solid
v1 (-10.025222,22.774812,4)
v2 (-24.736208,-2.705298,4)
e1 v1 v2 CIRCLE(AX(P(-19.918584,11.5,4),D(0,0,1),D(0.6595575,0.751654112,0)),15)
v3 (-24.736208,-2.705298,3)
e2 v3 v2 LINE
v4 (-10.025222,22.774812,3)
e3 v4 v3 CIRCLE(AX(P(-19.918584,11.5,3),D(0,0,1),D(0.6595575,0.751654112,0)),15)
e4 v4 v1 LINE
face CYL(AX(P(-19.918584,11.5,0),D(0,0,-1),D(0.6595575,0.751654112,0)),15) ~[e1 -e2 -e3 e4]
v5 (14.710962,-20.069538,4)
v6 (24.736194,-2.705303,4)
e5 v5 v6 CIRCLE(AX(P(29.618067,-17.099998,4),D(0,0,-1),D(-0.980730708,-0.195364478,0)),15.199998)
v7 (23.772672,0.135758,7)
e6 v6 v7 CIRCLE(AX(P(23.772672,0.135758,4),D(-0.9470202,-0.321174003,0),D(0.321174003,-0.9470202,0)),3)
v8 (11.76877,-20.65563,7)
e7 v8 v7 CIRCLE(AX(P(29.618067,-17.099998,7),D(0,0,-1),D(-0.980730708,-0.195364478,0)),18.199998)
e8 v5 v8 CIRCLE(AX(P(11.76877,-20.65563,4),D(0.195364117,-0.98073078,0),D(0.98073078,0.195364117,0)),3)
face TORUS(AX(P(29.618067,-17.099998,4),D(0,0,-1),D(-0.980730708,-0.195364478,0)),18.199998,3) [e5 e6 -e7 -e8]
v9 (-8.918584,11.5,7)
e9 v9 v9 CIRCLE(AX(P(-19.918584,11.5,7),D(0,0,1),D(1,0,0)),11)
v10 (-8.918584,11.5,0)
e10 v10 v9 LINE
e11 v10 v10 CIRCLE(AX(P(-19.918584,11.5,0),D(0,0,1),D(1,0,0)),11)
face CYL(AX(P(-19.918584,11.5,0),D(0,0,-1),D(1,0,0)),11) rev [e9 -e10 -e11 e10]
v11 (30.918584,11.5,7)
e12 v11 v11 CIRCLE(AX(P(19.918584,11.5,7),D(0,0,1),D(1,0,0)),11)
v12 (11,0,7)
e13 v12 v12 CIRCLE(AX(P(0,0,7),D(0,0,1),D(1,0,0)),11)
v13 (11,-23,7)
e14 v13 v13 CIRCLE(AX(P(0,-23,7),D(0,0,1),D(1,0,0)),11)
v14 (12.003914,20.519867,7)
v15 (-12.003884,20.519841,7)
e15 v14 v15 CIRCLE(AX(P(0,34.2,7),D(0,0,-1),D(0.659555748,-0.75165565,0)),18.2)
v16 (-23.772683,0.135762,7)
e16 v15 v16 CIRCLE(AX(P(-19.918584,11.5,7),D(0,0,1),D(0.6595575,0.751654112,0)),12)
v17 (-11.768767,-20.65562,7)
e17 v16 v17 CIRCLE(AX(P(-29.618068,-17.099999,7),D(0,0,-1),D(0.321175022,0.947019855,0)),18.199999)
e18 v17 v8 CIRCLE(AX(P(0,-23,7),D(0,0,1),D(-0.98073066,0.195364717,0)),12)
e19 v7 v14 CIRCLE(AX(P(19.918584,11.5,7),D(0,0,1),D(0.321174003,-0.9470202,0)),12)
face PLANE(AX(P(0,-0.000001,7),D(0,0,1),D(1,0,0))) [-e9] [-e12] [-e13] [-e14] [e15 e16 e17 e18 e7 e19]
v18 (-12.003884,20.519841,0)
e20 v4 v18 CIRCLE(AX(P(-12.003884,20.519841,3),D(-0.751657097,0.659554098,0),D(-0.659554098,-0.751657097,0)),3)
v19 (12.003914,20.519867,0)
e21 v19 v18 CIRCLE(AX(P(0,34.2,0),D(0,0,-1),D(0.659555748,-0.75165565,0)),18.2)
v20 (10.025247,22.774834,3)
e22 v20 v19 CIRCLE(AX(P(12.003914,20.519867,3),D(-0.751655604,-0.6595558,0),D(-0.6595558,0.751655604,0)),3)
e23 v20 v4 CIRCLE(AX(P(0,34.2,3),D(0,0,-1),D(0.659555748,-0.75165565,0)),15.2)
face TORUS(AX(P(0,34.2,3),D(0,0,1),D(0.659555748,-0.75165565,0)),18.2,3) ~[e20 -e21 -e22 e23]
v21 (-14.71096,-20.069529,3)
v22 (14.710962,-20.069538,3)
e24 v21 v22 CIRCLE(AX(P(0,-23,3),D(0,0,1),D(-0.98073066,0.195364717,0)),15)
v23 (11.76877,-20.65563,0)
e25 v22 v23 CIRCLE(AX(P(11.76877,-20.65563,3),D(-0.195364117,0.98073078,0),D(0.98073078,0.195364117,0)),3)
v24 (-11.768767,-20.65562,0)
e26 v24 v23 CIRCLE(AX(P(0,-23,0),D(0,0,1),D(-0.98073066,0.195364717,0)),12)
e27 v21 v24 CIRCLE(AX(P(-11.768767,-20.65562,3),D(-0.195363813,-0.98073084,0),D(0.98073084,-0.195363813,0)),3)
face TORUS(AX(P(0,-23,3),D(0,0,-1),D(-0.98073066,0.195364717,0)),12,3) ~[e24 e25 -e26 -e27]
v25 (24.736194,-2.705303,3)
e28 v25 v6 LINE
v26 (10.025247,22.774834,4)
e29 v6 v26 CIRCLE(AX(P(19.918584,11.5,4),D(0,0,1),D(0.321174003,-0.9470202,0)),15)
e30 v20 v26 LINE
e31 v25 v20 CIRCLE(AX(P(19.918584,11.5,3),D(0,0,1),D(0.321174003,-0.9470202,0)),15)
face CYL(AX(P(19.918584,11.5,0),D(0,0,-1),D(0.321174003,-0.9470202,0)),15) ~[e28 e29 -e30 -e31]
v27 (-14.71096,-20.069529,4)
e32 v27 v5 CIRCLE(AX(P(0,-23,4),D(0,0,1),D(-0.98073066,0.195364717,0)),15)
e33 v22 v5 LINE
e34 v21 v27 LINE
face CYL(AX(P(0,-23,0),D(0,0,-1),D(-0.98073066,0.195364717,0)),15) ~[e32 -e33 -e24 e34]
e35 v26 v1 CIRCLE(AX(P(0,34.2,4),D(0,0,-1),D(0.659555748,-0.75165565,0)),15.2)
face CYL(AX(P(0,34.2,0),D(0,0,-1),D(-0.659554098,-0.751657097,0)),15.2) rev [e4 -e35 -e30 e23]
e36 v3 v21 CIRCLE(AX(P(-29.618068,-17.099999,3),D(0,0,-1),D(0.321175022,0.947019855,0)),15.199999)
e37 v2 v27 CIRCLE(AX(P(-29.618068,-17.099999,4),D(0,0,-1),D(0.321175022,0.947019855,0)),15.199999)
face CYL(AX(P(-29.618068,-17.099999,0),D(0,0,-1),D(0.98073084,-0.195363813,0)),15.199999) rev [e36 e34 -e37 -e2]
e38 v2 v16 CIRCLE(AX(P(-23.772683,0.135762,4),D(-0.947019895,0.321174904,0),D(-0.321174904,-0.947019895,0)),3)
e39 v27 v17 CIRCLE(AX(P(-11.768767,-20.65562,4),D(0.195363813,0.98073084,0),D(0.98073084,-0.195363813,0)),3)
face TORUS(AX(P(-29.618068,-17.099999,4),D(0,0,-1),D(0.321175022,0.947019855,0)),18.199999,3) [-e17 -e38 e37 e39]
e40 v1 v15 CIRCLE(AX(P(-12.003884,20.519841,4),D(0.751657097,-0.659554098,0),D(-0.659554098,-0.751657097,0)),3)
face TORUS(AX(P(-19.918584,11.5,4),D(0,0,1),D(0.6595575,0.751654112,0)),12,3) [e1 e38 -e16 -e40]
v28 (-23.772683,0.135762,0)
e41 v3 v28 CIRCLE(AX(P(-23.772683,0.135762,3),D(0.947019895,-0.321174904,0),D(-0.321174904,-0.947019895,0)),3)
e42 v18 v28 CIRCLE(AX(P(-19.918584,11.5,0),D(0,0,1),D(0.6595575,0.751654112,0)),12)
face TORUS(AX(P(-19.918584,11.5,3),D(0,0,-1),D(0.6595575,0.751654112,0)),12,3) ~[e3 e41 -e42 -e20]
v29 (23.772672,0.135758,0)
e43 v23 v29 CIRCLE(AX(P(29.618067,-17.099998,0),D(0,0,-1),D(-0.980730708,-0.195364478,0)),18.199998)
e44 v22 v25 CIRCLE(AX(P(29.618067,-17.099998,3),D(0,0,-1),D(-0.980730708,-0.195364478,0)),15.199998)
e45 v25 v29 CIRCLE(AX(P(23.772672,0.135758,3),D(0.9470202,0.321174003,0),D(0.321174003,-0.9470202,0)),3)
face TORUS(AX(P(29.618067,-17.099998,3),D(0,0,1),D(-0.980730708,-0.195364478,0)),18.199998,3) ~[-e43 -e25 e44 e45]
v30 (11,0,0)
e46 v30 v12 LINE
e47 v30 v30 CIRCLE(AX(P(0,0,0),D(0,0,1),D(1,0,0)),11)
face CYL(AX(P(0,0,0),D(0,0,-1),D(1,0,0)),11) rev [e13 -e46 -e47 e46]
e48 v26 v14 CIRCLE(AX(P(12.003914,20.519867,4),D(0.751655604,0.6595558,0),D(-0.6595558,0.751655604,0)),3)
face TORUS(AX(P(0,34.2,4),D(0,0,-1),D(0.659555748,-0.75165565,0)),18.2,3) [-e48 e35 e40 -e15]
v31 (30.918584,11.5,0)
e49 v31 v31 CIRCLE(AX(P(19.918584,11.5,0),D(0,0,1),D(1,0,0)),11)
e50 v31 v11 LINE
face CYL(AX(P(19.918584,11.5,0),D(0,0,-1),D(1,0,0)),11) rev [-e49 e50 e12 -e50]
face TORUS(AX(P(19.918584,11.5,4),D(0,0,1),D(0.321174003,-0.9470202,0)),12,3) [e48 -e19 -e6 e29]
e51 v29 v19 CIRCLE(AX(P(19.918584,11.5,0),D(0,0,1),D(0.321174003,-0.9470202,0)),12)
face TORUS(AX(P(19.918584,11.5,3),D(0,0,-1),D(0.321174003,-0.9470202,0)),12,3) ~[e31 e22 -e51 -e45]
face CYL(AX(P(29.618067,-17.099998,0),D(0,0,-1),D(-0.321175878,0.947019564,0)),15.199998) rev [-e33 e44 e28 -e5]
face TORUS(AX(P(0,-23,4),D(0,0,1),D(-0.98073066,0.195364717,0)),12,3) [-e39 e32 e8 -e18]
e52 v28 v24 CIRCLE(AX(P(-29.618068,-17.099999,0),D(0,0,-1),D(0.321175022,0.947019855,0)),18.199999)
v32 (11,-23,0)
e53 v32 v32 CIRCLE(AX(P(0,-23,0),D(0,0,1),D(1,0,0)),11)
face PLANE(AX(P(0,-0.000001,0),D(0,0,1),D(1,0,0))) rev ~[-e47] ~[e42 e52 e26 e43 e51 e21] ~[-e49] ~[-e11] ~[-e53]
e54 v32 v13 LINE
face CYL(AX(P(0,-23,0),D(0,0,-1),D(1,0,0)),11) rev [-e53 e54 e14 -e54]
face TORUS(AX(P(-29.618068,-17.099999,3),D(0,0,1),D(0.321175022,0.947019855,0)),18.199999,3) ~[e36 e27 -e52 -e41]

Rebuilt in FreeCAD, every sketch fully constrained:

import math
import FreeCAD as App
import Part
import Sketcher
from FreeCAD import Vector
Q = App.Units.Quantity


def edges_at(feature, points):
    """Names of the edges that pass closest to the given points."""
    edges = feature.Shape.Edges
    near = lambda p: min(range(len(edges)), key=lambda i: edges[i].distToShape(Part.Vertex(*p))[0])
    return sorted({f"Edge{near(p) + 1}" for p in points})

doc = App.newDocument("Part")
body = doc.addObject("PartDesign::Body", "Body")

sketch1 = body.newObject("Sketcher::SketchObject", "Sketch")
sketch1.AttachmentSupport = (doc.getObject("XY_Plane"), [""])
sketch1.MapMode = "FlatFace"
sketch1.addGeometry(Part.ArcOfCircle(Part.Circle(Vector(19.918584, 11.5, 0), Vector(0, 0, 1), 15), math.radians(-71.266062), math.radians(131.266004)), False)
sketch1.addGeometry(Part.ArcOfCircle(Part.Circle(Vector(0, 34.2, 0), Vector(0, 0, 1), 15.2), math.radians(-131.265875), math.radians(-48.734)), False)
sketch1.addGeometry(Part.ArcOfCircle(Part.Circle(Vector(-19.918584, 11.5, 0), Vector(0, 0, 1), 15), math.radians(48.733866), math.radians(251.266007)), False)
sketch1.addGeometry(Part.ArcOfCircle(Part.Circle(Vector(-29.618068, -17.099999, 0), Vector(0, 0, 1), 15.199999), math.radians(-11.265977), math.radians(71.266)), False)
sketch1.addGeometry(Part.ArcOfCircle(Part.Circle(Vector(0, -23, 0), Vector(0, 0, 1), 15), math.radians(168.73397), math.radians(371.265995)), False)
sketch1.addGeometry(Part.ArcOfCircle(Part.Circle(Vector(29.618067, -17.099998, 0), Vector(0, 0, 1), 15.199998), math.radians(108.734052), math.radians(191.266016)), False)
sketch1.addGeometry(Part.Circle(Vector(0, -23, 0), Vector(0, 0, 1), 11), False)
sketch1.addGeometry(Part.Circle(Vector(-19.918584, 11.5, 0), Vector(0, 0, 1), 11), False)
sketch1.addGeometry(Part.Circle(Vector(0, 0, 0), Vector(0, 0, 1), 11), False)
sketch1.addGeometry(Part.Circle(Vector(19.918584, 11.5, 0), Vector(0, 0, 1), 11), False)
sketch1.addConstraint(Sketcher.Constraint("Tangent", 0, 2, 1, 2))
sketch1.addConstraint(Sketcher.Constraint("Coincident", 1, 1, 2, 1))
sketch1.addConstraint(Sketcher.Constraint("Tangent", 2, 2, 3, 2))
sketch1.addConstraint(Sketcher.Constraint("Tangent", 3, 1, 4, 1))
sketch1.addConstraint(Sketcher.Constraint("Tangent", 4, 2, 5, 2))
sketch1.addConstraint(Sketcher.Constraint("Tangent", 5, 1, 0, 1))
sketch1.addConstraint(Sketcher.Constraint("Coincident", 8, 3, -1, 1))
sketch1.addConstraint(Sketcher.Constraint("Coincident", 6, 3, 4, 3))
sketch1.addConstraint(Sketcher.Constraint("Coincident", 7, 3, 2, 3))
sketch1.addConstraint(Sketcher.Constraint("Coincident", 9, 3, 0, 3))
sketch1.addConstraint(Sketcher.Constraint("Equal", 0, 2))
sketch1.addConstraint(Sketcher.Constraint("Equal", 1, 3))
sketch1.addConstraint(Sketcher.Constraint("Equal", 2, 4))
sketch1.addConstraint(Sketcher.Constraint("Equal", 3, 5))
sketch1.addConstraint(Sketcher.Constraint("Equal", 6, 7))
sketch1.addConstraint(Sketcher.Constraint("Equal", 7, 8))
sketch1.addConstraint(Sketcher.Constraint("Equal", 8, 9))
sketch1.addConstraint(Sketcher.Constraint("Symmetric", 0, 3, 2, 3, -2))
sketch1.addConstraint(Sketcher.Constraint("PointOnObject", 4, 3, -2))
sketch1.addConstraint(Sketcher.Constraint("Diameter", 6, Q("22 mm")))
sketch1.addConstraint(Sketcher.Constraint("Radius", 0, Q("15 mm")))
sketch1.addConstraint(Sketcher.Constraint("Radius", 1, Q("15.2 mm")))
sketch1.addConstraint(Sketcher.Constraint("DistanceY", 4, 3, -1, 1, Q("23 mm")))
sketch1.addConstraint(Sketcher.Constraint("DistanceY", -1, 1, 0, 3, Q("11.5 mm")))
sketch1.addConstraint(Sketcher.Constraint("DistanceY", -1, 1, 1, 3, Q("34.2 mm")))
sketch1.addConstraint(Sketcher.Constraint("DistanceY", -1, 1, 1, 1, Q("22.774812 mm")))
pad1 = body.newObject("PartDesign::Pad", "Pad")
pad1.Profile = sketch1
pad1.Length = 7
doc.recompute()

fillet = body.newObject("PartDesign::Fillet", "Fillet")
fillet.Base = (pad1, edges_at(pad1, [(32.909, 19, 0), (32.909, 19, 7)]))
fillet.Radius = 3

doc.recompute()
